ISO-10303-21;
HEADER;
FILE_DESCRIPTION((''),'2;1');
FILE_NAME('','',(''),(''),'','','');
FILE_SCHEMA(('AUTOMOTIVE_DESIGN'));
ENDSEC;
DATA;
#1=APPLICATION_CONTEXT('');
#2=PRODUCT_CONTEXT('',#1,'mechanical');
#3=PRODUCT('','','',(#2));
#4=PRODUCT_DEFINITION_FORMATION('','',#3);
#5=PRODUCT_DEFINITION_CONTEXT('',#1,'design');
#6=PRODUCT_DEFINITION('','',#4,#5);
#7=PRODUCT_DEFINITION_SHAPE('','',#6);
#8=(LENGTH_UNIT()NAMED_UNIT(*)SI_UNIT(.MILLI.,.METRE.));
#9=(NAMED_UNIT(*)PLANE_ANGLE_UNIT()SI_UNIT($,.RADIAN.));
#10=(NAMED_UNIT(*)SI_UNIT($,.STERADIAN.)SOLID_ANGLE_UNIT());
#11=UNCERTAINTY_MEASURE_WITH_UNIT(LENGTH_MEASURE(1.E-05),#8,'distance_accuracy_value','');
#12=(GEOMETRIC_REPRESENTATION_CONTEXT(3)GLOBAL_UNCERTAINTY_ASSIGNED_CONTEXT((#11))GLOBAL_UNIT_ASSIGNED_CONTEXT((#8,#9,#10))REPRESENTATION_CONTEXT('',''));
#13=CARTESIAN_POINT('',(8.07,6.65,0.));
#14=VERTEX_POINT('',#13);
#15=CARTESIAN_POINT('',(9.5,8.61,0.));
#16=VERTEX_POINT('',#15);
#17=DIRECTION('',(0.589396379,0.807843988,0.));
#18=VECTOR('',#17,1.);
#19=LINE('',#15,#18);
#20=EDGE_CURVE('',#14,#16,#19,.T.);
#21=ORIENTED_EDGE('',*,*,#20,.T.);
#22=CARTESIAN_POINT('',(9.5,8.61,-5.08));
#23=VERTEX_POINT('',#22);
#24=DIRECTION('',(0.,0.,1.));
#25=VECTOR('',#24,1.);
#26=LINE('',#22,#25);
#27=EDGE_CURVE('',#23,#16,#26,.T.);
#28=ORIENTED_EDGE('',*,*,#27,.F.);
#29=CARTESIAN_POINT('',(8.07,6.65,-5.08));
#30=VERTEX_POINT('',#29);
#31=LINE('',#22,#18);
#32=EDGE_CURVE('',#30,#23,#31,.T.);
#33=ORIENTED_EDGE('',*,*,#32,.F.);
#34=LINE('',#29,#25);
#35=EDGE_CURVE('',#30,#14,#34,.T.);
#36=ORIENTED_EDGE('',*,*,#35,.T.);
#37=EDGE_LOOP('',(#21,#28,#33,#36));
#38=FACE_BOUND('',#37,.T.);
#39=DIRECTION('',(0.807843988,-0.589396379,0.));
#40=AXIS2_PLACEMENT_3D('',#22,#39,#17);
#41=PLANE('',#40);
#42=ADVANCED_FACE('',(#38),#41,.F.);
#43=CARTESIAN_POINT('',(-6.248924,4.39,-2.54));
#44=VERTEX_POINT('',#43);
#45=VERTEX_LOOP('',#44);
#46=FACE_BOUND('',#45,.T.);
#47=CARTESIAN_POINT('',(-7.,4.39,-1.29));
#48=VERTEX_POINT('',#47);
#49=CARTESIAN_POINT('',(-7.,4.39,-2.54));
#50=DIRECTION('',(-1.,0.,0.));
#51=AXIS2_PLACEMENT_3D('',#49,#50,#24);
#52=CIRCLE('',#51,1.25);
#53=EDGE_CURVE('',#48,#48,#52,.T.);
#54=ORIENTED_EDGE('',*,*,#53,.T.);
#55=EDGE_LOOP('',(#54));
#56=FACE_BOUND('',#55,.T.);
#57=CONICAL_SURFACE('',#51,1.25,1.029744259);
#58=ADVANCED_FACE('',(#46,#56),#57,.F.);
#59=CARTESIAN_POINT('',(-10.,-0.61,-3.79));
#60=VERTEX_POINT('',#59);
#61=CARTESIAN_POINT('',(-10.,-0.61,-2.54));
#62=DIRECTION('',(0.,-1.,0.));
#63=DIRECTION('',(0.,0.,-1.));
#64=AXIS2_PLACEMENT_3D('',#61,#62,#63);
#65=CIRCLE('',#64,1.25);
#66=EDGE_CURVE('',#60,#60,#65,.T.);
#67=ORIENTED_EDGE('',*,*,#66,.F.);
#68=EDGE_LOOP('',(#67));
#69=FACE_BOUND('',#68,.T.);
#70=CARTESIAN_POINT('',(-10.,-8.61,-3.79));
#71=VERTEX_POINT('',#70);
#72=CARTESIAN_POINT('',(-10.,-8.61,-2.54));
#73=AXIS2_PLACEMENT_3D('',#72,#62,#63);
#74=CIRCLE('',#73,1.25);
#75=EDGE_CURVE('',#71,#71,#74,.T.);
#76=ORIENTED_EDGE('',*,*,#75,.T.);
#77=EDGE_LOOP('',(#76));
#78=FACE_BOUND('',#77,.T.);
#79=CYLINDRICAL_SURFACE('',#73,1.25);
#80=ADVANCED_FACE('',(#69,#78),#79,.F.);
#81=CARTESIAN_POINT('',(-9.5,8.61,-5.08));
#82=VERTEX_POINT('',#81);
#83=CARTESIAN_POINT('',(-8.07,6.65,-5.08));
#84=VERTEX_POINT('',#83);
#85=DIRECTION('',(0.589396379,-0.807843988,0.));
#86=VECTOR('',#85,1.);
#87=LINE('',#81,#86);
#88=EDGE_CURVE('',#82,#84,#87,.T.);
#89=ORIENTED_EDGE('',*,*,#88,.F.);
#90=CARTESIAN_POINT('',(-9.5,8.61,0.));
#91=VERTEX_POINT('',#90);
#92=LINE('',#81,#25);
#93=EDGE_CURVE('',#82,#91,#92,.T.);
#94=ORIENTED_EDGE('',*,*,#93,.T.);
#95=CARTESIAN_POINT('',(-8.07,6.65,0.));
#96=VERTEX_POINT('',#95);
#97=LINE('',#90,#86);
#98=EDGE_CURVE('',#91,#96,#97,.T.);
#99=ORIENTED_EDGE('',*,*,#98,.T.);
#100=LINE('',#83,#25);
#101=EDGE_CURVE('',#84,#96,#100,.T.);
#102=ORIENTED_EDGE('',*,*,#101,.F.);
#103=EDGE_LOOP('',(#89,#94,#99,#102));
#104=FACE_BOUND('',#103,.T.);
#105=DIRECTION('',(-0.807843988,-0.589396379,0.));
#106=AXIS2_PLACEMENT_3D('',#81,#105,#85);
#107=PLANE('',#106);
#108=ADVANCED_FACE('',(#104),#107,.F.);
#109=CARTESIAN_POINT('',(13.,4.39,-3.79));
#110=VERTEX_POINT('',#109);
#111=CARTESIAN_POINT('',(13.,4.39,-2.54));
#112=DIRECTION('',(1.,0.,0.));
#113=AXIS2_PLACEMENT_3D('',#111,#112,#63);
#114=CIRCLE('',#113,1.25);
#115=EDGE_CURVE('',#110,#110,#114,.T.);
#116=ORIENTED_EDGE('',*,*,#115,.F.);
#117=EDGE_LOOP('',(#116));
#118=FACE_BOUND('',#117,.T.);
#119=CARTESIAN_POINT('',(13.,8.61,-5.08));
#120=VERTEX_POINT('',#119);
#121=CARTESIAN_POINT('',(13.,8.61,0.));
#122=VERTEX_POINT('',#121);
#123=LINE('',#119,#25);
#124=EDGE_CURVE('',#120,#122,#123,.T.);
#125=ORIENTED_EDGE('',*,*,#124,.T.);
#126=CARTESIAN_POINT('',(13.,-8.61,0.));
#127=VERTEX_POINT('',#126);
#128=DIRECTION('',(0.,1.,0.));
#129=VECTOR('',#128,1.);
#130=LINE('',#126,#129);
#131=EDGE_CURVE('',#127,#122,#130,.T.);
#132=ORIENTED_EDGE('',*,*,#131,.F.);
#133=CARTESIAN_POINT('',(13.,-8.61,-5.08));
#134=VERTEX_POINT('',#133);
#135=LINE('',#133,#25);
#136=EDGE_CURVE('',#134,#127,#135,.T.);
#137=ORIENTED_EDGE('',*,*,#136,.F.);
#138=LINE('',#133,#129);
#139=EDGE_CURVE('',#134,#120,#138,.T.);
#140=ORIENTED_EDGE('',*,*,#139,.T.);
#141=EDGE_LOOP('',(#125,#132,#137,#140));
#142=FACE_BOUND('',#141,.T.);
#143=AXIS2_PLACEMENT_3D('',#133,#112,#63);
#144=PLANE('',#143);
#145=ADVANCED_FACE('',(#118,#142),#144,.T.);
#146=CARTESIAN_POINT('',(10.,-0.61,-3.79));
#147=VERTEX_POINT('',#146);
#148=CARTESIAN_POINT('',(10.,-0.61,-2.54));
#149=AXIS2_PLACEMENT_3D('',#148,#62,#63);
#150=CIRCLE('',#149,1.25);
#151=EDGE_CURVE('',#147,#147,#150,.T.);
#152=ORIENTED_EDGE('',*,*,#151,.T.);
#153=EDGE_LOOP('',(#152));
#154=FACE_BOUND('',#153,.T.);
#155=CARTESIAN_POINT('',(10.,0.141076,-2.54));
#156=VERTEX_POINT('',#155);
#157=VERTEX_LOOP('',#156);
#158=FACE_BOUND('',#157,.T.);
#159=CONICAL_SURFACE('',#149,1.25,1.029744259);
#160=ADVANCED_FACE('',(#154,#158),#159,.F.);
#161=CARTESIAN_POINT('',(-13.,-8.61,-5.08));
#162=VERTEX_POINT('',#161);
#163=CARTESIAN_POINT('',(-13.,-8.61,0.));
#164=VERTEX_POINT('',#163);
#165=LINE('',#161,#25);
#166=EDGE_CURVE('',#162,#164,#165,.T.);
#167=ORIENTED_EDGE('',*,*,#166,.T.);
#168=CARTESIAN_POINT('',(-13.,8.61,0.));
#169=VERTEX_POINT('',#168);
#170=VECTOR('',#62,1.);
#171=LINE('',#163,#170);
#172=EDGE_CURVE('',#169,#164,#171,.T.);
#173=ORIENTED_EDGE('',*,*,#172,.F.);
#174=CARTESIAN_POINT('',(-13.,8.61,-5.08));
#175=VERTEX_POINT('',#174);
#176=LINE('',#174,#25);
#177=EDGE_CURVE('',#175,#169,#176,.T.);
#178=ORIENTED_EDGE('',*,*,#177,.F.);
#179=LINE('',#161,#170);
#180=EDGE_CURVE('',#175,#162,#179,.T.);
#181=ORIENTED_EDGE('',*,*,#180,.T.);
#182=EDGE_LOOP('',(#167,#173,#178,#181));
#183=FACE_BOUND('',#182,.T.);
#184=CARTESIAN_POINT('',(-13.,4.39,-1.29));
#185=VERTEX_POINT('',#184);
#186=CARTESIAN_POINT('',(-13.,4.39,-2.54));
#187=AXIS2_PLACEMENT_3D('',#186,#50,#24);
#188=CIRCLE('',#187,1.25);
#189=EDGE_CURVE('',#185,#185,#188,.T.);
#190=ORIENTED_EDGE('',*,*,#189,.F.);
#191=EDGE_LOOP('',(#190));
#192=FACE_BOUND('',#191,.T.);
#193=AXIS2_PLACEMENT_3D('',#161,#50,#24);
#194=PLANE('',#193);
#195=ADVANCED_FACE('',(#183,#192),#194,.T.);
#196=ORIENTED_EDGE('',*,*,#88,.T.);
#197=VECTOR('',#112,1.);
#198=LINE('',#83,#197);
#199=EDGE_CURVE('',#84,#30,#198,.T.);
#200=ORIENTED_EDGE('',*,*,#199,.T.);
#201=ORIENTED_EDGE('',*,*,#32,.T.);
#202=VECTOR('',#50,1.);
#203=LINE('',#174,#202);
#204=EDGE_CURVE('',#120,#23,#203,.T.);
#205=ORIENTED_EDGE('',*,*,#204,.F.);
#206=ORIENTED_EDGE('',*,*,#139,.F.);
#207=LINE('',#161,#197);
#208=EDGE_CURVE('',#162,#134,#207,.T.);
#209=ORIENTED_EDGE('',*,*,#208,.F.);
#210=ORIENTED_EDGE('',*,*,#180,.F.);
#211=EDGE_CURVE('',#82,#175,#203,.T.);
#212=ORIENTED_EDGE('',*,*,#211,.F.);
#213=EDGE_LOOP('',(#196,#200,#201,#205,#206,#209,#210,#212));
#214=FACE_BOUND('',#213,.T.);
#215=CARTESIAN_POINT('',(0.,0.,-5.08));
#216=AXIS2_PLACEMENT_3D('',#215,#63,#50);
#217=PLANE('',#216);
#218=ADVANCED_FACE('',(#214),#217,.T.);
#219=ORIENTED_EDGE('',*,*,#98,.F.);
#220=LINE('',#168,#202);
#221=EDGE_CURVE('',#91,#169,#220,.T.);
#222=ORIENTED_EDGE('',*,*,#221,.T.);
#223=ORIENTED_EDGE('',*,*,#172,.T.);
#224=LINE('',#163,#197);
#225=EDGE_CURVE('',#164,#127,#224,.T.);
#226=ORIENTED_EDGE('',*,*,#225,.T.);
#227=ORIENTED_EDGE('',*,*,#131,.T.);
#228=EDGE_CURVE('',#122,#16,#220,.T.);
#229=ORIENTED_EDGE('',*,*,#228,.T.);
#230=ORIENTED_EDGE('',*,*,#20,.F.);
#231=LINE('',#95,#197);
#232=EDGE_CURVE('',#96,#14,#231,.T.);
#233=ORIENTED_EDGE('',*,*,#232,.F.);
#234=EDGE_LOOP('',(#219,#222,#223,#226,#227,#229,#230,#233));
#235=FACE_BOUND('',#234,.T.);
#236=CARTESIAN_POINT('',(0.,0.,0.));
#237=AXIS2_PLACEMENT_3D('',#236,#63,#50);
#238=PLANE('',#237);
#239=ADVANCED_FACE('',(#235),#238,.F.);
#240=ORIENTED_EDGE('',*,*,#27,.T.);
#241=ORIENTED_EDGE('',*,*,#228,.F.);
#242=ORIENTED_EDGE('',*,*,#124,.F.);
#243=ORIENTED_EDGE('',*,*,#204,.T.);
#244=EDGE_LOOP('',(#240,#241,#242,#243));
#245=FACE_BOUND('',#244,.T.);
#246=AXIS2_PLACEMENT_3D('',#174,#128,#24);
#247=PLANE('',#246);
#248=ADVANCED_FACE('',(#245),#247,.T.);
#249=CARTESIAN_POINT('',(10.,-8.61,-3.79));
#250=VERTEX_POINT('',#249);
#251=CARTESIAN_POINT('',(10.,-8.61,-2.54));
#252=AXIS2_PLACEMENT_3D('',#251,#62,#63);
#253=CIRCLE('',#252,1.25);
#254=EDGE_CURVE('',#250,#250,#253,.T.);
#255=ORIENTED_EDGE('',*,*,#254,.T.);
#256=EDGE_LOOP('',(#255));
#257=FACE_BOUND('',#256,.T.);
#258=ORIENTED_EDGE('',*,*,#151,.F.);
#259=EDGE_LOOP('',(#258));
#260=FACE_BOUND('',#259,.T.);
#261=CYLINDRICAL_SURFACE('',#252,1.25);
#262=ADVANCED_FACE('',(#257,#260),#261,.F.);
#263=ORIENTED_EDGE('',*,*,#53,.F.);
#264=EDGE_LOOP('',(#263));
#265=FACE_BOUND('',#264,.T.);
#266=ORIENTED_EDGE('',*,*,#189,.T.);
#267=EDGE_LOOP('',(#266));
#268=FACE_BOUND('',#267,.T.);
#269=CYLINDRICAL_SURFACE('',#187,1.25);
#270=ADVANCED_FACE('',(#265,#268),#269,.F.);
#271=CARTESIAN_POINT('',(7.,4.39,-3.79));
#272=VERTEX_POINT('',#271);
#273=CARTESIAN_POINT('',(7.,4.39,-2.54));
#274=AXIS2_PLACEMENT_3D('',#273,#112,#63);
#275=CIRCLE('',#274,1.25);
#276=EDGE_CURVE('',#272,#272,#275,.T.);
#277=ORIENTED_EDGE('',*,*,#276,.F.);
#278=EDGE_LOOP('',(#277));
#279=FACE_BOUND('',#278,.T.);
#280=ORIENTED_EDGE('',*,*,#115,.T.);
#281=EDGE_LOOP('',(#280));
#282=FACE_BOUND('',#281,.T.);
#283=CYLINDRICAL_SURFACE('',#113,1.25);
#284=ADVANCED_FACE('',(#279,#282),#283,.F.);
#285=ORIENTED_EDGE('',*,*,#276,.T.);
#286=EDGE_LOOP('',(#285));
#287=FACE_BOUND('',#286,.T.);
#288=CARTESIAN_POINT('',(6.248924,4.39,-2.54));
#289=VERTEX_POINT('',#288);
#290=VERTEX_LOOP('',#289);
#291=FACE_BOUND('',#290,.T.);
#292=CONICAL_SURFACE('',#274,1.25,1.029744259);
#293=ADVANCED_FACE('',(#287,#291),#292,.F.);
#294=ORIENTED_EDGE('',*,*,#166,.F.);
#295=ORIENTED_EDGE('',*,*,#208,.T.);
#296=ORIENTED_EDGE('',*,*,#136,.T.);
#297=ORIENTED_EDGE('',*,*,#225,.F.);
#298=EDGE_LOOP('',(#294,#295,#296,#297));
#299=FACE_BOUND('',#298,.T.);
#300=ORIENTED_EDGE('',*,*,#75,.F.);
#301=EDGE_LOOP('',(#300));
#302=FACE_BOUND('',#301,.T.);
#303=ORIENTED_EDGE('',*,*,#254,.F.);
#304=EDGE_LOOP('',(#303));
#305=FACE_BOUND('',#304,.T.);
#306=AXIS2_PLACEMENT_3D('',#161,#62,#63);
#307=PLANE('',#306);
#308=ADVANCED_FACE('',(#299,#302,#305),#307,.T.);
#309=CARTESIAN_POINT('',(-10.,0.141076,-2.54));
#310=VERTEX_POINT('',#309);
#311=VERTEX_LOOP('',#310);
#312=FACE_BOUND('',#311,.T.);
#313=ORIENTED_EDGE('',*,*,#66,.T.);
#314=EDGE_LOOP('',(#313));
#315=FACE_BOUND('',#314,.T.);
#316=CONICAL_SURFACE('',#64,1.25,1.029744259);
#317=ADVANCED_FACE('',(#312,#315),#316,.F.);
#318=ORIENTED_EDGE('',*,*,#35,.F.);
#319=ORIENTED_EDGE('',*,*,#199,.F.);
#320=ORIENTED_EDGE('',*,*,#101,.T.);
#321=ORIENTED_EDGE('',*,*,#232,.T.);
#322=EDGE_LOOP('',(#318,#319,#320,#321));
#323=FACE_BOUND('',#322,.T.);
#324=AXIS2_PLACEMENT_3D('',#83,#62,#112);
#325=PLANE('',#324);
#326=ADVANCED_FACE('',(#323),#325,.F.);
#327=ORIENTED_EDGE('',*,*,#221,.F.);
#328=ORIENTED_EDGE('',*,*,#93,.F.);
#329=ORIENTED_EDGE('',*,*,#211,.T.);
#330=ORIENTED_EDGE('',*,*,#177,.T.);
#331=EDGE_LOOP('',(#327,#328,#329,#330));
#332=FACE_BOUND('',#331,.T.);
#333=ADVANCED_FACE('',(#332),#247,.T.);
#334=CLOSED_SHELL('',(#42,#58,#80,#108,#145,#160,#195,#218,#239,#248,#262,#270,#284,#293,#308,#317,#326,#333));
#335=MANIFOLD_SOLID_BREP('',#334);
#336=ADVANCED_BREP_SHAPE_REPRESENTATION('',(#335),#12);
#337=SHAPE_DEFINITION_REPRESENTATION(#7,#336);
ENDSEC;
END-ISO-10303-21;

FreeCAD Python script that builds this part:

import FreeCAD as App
import Part
import Sketcher
Q = App.Units.Quantity

doc = App.newDocument("Part")
body = doc.addObject("PartDesign::Body", "Body")

sketch1 = doc.addObject("Sketcher::SketchObject", "Sketch")
body.addObject(sketch1)
sketch1.AttachmentSupport = (doc.XY_Plane, [""])
sketch1.MapMode = "FlatFace"
sketch1.addGeometry([
    Part.LineSegment(App.Vector(-13, 9, 0), App.Vector(-13, -9, 0)),
    Part.LineSegment(App.Vector(-13, -9, 0), App.Vector(13, -9, 0)),
    Part.LineSegment(App.Vector(13, -9, 0), App.Vector(13, 9, 0)),
    Part.LineSegment(App.Vector(13, 9, 0), App.Vector(-13, 9, 0)),
], False)
sketch1.addConstraint([
    Sketcher.Constraint("Coincident", 0, 2, 1, 1),
    Sketcher.Constraint("Coincident", 1, 2, 2, 1),
    Sketcher.Constraint("Coincident", 2, 2, 3, 1),
    Sketcher.Constraint("Coincident", 3, 2, 0, 1),
    Sketcher.Constraint("Vertical", 0),
    Sketcher.Constraint("Horizontal", 1),
    Sketcher.Constraint("Vertical", 2),
    Sketcher.Constraint("Horizontal", 3),
    Sketcher.Constraint("Symmetric", 0, 2, 2, 2, -1, 1),
    Sketcher.Constraint("DistanceX", 1, 1, 1, 2, Q("26 mm")),
    Sketcher.Constraint("DistanceY", 0, 2, 0, 1, Q("17.22 mm")),
])
pad1 = doc.addObject("PartDesign::Pad", "Pad")
body.addObject(pad1)
pad1.Profile = sketch1
pad1.Length = 5.08
pad1.Reversed = True

sketch2 = doc.addObject("Sketcher::SketchObject", "Sketch001")
body.addObject(sketch2)
sketch2.AttachmentSupport = (doc.XY_Plane, [""])
sketch2.MapMode = "FlatFace"
sketch2.addGeometry([
    Part.LineSegment(App.Vector(9.5, 8.6, 0), App.Vector(-9.5, 8.6, 0)),
    Part.LineSegment(App.Vector(-9.5, 8.6, 0), App.Vector(-8.1, 6.7, 0)),
    Part.LineSegment(App.Vector(-8.1, 6.7, 0), App.Vector(8.1, 6.7, 0)),
    Part.LineSegment(App.Vector(8.1, 6.7, 0), App.Vector(9.5, 8.6, 0)),
], False)
sketch2.addConstraint([
    Sketcher.Constraint("Coincident", 0, 2, 1, 1),
    Sketcher.Constraint("Coincident", 1, 2, 2, 1),
    Sketcher.Constraint("Coincident", 2, 2, 3, 1),
    Sketcher.Constraint("Coincident", 3, 2, 0, 1),
    Sketcher.Constraint("Horizontal", 0),
    Sketcher.Constraint("Horizontal", 2),
    Sketcher.Constraint("Equal", 1, 3),
    Sketcher.Constraint("DistanceX", 0, 2, 0, 1, Q("19 mm")),
    Sketcher.Constraint("DistanceX", 2, 1, 2, 2, Q("16.14 mm")),
    Sketcher.Constraint("DistanceX", 0, 2, -1, 1, Q("9.5 mm")),
    Sketcher.Constraint("DistanceY", -1, 1, 0, 2, Q("8.61 mm")),
    Sketcher.Constraint("DistanceY", -1, 1, 1, 2, Q("6.65 mm")),
])
pocket1 = doc.addObject("PartDesign::Pocket", "Pocket")
body.addObject(pocket1)
pocket1.Profile = sketch2
pocket1.Type = "ThroughAll"

sketch3 = doc.addObject("Sketcher::SketchObject", "Sketch002")
body.addObject(sketch3)
sketch3.AttachmentSupport = (doc.XZ_Plane, [""])
sketch3.MapMode = "FlatFace"
sketch3.AttachmentOffset = App.Placement(App.Vector(0, 0, 8.61), App.Rotation())
sketch3.addGeometry([
    Part.Circle(App.Vector(-10, -2.5, 0), App.Vector(0, 0, 1), 1.2),
    Part.Circle(App.Vector(10, -2.5, 0), App.Vector(0, 0, 1), 1.2),
], False)
sketch3.addConstraint([
    Sketcher.Constraint("Equal", 0, 1),
    Sketcher.Constraint("Symmetric", 0, 3, 1, 3, -2),
    Sketcher.Constraint("Diameter", 0, Q("2.5 mm")),
    Sketcher.Constraint("DistanceX", 0, 3, -1, 1, Q("10 mm")),
    Sketcher.Constraint("DistanceY", 0, 3, -1, 1, Q("2.54 mm")),
])
doc.recompute()
hole = doc.addObject("PartDesign::Hole", "Hole")
body.addObject(hole)
hole.Profile = sketch3
hole.ThreadType = "None"
hole.Diameter = 2.5
hole.DepthType = "Dimension"
hole.Depth = 8
hole.DrillPoint = "Angled"
hole.DrillPointAngle = 118

sketch4 = doc.addObject("Sketcher::SketchObject", "Sketch003")
body.addObject(sketch4)
sketch4.AttachmentSupport = (doc.XZ_Plane, [""])
sketch4.MapMode = "FlatFace"
sketch4.AttachmentOffset = App.Placement(App.Vector(0, 0, -4.39), App.Rotation())
sketch4.addGeometry([
    Part.LineSegment(App.Vector(-6.2, -2.5, 0), App.Vector(-13, -2.5, 0)),
    Part.LineSegment(App.Vector(-13, -2.5, 0), App.Vector(-13, -1.3, 0)),
    Part.LineSegment(App.Vector(-13, -1.3, 0), App.Vector(-7, -1.3, 0)),
    Part.LineSegment(App.Vector(-7, -1.3, 0), App.Vector(-6.2, -2.5, 0)),
], False)
sketch4.addGeometry(Part.LineSegment(App.Vector(-13, -2.5, 0), App.Vector(-6.2, -2.5, 0)), True)
sketch4.addConstraint([
    Sketcher.Constraint("Coincident", 0, 2, 1, 1),
    Sketcher.Constraint("Coincident", 1, 2, 2, 1),
    Sketcher.Constraint("Coincident", 2, 2, 3, 1),
    Sketcher.Constraint("Coincident", 3, 2, 0, 1),
    Sketcher.Constraint("Horizontal", 0),
    Sketcher.Constraint("Vertical", 1),
    Sketcher.Constraint("Horizontal", 2),
    Sketcher.Constraint("Horizontal", 4),
    Sketcher.Constraint("Coincident", 4, 1, 0, 2),
    Sketcher.Constraint("Equal", 0, 4),
    Sketcher.Constraint("DistanceX", 2, 1, 2, 2, Q("6 mm")),
    Sketcher.Constraint("Angle", 3, Q("-59 deg")),
    Sketcher.Constraint("DistanceX", 0, 2, -1, 1, Q("13 mm")),
    Sketcher.Constraint("DistanceY", 1, 1, 1, 2, Q("1.25 mm")),
    Sketcher.Constraint("DistanceY", 0, 2, -1, 1, Q("2.54 mm")),
])
groove = doc.addObject("PartDesign::Groove", "Groove")
body.addObject(groove)
groove.Profile = sketch4
groove.ReferenceAxis = (sketch4, ["Axis0"])
groove.Angle = 360
doc.recompute()

mirrored = doc.addObject("PartDesign::Mirrored", "Mirrored")
body.addObject(mirrored)
mirrored.Originals = [groove]
mirrored.MirrorPlane = (doc.YZ_Plane, [""])
body.Tip = mirrored

doc.recompute()
